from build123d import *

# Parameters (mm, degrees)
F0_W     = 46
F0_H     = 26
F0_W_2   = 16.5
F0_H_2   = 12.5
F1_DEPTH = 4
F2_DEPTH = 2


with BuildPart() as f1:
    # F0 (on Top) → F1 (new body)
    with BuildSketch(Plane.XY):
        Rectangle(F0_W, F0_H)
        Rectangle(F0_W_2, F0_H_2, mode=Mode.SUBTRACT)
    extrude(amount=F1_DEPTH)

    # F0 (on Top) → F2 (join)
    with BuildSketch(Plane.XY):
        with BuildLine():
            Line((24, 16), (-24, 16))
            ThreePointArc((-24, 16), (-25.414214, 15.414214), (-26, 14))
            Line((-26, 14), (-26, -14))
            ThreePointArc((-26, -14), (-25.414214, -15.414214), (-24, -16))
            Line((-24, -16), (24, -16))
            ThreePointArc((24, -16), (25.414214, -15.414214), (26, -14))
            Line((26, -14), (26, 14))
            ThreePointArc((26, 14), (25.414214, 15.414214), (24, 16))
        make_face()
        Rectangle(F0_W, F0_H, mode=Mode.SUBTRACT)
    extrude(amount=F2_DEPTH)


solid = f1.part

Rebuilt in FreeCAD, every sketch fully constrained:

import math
import FreeCAD as App
import Part
import Sketcher

V = App.Vector


def add_polygon(sketch, points):
    """Adds a closed chain of lines whose ends are joined by coincident constraints."""
    first, n = sketch.GeometryCount, len(points)
    for a, b in zip(points, points[1:] + points[:1]):
        sketch.addGeometry(Part.LineSegment(App.Vector(*a, 0), App.Vector(*b, 0)), False)
    for i in range(n):
        sketch.addConstraint(Sketcher.Constraint("Coincident", first + i, 2, first + (i + 1) % n, 1))

doc = App.newDocument("Part")
body = doc.addObject("PartDesign::Body", "Body")

sketch1 = doc.addObject("Sketcher::SketchObject", "Sketch")
body.addObject(sketch1)
sketch1.AttachmentSupport = (doc.XY_Plane, [""])
sketch1.MapMode = "FlatFace"
add_polygon(sketch1, [(-23, 13), (-23, -13), (23, -13), (23, 13)])
add_polygon(sketch1, [(8, -6), (-8, -6), (-8, 6), (8, 6)])
sketch1.addConstraint(Sketcher.Constraint("Vertical", 0))
sketch1.addConstraint(Sketcher.Constraint("Horizontal", 1))
sketch1.addConstraint(Sketcher.Constraint("Vertical", 2))
sketch1.addConstraint(Sketcher.Constraint("Horizontal", 3))
sketch1.addConstraint(Sketcher.Constraint("Horizontal", 4))
sketch1.addConstraint(Sketcher.Constraint("Vertical", 5))
sketch1.addConstraint(Sketcher.Constraint("Horizontal", 6))
sketch1.addConstraint(Sketcher.Constraint("Vertical", 7))
sketch1.addConstraint(Sketcher.Constraint("Symmetric", 0, 2, 2, 2, -1, 1))
sketch1.addConstraint(Sketcher.Constraint("Symmetric", 4, 2, 6, 2, -1, 1))
sketch1.addConstraint(Sketcher.Constraint("DistanceX", 1, 1, 1, 2, 46.0))
sketch1.addConstraint(Sketcher.Constraint("DistanceY", 0, 2, 0, 1, 26.0))
sketch1.addConstraint(Sketcher.Constraint("DistanceX", 4, 2, 4, 1, 16.5))
sketch1.addConstraint(Sketcher.Constraint("DistanceY", 5, 1, 5, 2, 12.5))
pad1 = doc.addObject("PartDesign::Pad", "Pad")
body.addObject(pad1)
pad1.Profile = sketch1
pad1.Length = 4

sketch2 = doc.addObject("Sketcher::SketchObject", "Sketch001")
body.addObject(sketch2)
sketch2.AttachmentSupport = (doc.XY_Plane, [""])
sketch2.MapMode = "FlatFace"
sketch2.addGeometry(Part.LineSegment(V(24, 16, 0), V(-24, 16, 0)), False)
sketch2.addGeometry(Part.ArcOfCircle(Part.Circle(V(-24, 14, 0), V(0, 0, 1), 2), math.radians(90), math.radians(180)), False)
sketch2.addGeometry(Part.LineSegment(V(-26, 14, 0), V(-26, -14, 0)), False)
sketch2.addGeometry(Part.ArcOfCircle(Part.Circle(V(-24, -14, 0), V(0, 0, 1), 2), math.radians(180), math.radians(270)), False)
sketch2.addGeometry(Part.LineSegment(V(-24, -16, 0), V(24, -16, 0)), False)
sketch2.addGeometry(Part.ArcOfCircle(Part.Circle(V(24, -14, 0), V(0, 0, 1), 2), math.radians(-90), math.radians(0)), False)
sketch2.addGeometry(Part.LineSegment(V(26, -14, 0), V(26, 14, 0)), False)
sketch2.addGeometry(Part.ArcOfCircle(Part.Circle(V(24, 14, 0), V(0, 0, 1), 2), math.radians(0), math.radians(90)), False)
add_polygon(sketch2, [(23, -13), (-23, -13), (-23, 13), (23, 13)])
sketch2.addConstraint(Sketcher.Constraint("Tangent", 0, 2, 1, 1))
sketch2.addConstraint(Sketcher.Constraint("Tangent", 1, 2, 2, 1))
sketch2.addConstraint(Sketcher.Constraint("Tangent", 2, 2, 3, 1))
sketch2.addConstraint(Sketcher.Constraint("Tangent", 3, 2, 4, 1))
sketch2.addConstraint(Sketcher.Constraint("Tangent", 4, 2, 5, 1))
sketch2.addConstraint(Sketcher.Constraint("Tangent", 5, 2, 6, 1))
sketch2.addConstraint(Sketcher.Constraint("Tangent", 6, 2, 7, 1))
sketch2.addConstraint(Sketcher.Constraint("Tangent", 7, 2, 0, 1))
sketch2.addConstraint(Sketcher.Constraint("Horizontal", 0))
sketch2.addConstraint(Sketcher.Constraint("Vertical", 2))
sketch2.addConstraint(Sketcher.Constraint("Horizontal", 4))
sketch2.addConstraint(Sketcher.Constraint("Vertical", 6))
sketch2.addConstraint(Sketcher.Constraint("Horizontal", 8))
sketch2.addConstraint(Sketcher.Constraint("Vertical", 9))
sketch2.addConstraint(Sketcher.Constraint("Horizontal", 10))
sketch2.addConstraint(Sketcher.Constraint("Vertical", 11))
sketch2.addConstraint(Sketcher.Constraint("Equal", 1, 3))
sketch2.addConstraint(Sketcher.Constraint("Equal", 3, 5))
sketch2.addConstraint(Sketcher.Constraint("Equal", 5, 7))
sketch2.addConstraint(Sketcher.Constraint("Symmetric", 1, 3, 5, 3, -1, 1))
sketch2.addConstraint(Sketcher.Constraint("Symmetric", 8, 2, 10, 2, -1, 1))
sketch2.addConstraint(Sketcher.Constraint("Radius", 1, 1.999999))
sketch2.addConstraint(Sketcher.Constraint("DistanceX", 0, 2, 0, 1, 48.0))
sketch2.addConstraint(Sketcher.Constraint("DistanceX", 8, 2, 8, 1, 46.0))
sketch2.addConstraint(Sketcher.Constraint("DistanceY", 2, 2, 2, 1, 28.0))
sketch2.addConstraint(Sketcher.Constraint("DistanceY", 9, 1, 9, 2, 26.0))
pad2 = doc.addObject("PartDesign::Pad", "Pad001")
body.addObject(pad2)
pad2.Profile = sketch2
pad2.Length = 2

doc.recompute()
